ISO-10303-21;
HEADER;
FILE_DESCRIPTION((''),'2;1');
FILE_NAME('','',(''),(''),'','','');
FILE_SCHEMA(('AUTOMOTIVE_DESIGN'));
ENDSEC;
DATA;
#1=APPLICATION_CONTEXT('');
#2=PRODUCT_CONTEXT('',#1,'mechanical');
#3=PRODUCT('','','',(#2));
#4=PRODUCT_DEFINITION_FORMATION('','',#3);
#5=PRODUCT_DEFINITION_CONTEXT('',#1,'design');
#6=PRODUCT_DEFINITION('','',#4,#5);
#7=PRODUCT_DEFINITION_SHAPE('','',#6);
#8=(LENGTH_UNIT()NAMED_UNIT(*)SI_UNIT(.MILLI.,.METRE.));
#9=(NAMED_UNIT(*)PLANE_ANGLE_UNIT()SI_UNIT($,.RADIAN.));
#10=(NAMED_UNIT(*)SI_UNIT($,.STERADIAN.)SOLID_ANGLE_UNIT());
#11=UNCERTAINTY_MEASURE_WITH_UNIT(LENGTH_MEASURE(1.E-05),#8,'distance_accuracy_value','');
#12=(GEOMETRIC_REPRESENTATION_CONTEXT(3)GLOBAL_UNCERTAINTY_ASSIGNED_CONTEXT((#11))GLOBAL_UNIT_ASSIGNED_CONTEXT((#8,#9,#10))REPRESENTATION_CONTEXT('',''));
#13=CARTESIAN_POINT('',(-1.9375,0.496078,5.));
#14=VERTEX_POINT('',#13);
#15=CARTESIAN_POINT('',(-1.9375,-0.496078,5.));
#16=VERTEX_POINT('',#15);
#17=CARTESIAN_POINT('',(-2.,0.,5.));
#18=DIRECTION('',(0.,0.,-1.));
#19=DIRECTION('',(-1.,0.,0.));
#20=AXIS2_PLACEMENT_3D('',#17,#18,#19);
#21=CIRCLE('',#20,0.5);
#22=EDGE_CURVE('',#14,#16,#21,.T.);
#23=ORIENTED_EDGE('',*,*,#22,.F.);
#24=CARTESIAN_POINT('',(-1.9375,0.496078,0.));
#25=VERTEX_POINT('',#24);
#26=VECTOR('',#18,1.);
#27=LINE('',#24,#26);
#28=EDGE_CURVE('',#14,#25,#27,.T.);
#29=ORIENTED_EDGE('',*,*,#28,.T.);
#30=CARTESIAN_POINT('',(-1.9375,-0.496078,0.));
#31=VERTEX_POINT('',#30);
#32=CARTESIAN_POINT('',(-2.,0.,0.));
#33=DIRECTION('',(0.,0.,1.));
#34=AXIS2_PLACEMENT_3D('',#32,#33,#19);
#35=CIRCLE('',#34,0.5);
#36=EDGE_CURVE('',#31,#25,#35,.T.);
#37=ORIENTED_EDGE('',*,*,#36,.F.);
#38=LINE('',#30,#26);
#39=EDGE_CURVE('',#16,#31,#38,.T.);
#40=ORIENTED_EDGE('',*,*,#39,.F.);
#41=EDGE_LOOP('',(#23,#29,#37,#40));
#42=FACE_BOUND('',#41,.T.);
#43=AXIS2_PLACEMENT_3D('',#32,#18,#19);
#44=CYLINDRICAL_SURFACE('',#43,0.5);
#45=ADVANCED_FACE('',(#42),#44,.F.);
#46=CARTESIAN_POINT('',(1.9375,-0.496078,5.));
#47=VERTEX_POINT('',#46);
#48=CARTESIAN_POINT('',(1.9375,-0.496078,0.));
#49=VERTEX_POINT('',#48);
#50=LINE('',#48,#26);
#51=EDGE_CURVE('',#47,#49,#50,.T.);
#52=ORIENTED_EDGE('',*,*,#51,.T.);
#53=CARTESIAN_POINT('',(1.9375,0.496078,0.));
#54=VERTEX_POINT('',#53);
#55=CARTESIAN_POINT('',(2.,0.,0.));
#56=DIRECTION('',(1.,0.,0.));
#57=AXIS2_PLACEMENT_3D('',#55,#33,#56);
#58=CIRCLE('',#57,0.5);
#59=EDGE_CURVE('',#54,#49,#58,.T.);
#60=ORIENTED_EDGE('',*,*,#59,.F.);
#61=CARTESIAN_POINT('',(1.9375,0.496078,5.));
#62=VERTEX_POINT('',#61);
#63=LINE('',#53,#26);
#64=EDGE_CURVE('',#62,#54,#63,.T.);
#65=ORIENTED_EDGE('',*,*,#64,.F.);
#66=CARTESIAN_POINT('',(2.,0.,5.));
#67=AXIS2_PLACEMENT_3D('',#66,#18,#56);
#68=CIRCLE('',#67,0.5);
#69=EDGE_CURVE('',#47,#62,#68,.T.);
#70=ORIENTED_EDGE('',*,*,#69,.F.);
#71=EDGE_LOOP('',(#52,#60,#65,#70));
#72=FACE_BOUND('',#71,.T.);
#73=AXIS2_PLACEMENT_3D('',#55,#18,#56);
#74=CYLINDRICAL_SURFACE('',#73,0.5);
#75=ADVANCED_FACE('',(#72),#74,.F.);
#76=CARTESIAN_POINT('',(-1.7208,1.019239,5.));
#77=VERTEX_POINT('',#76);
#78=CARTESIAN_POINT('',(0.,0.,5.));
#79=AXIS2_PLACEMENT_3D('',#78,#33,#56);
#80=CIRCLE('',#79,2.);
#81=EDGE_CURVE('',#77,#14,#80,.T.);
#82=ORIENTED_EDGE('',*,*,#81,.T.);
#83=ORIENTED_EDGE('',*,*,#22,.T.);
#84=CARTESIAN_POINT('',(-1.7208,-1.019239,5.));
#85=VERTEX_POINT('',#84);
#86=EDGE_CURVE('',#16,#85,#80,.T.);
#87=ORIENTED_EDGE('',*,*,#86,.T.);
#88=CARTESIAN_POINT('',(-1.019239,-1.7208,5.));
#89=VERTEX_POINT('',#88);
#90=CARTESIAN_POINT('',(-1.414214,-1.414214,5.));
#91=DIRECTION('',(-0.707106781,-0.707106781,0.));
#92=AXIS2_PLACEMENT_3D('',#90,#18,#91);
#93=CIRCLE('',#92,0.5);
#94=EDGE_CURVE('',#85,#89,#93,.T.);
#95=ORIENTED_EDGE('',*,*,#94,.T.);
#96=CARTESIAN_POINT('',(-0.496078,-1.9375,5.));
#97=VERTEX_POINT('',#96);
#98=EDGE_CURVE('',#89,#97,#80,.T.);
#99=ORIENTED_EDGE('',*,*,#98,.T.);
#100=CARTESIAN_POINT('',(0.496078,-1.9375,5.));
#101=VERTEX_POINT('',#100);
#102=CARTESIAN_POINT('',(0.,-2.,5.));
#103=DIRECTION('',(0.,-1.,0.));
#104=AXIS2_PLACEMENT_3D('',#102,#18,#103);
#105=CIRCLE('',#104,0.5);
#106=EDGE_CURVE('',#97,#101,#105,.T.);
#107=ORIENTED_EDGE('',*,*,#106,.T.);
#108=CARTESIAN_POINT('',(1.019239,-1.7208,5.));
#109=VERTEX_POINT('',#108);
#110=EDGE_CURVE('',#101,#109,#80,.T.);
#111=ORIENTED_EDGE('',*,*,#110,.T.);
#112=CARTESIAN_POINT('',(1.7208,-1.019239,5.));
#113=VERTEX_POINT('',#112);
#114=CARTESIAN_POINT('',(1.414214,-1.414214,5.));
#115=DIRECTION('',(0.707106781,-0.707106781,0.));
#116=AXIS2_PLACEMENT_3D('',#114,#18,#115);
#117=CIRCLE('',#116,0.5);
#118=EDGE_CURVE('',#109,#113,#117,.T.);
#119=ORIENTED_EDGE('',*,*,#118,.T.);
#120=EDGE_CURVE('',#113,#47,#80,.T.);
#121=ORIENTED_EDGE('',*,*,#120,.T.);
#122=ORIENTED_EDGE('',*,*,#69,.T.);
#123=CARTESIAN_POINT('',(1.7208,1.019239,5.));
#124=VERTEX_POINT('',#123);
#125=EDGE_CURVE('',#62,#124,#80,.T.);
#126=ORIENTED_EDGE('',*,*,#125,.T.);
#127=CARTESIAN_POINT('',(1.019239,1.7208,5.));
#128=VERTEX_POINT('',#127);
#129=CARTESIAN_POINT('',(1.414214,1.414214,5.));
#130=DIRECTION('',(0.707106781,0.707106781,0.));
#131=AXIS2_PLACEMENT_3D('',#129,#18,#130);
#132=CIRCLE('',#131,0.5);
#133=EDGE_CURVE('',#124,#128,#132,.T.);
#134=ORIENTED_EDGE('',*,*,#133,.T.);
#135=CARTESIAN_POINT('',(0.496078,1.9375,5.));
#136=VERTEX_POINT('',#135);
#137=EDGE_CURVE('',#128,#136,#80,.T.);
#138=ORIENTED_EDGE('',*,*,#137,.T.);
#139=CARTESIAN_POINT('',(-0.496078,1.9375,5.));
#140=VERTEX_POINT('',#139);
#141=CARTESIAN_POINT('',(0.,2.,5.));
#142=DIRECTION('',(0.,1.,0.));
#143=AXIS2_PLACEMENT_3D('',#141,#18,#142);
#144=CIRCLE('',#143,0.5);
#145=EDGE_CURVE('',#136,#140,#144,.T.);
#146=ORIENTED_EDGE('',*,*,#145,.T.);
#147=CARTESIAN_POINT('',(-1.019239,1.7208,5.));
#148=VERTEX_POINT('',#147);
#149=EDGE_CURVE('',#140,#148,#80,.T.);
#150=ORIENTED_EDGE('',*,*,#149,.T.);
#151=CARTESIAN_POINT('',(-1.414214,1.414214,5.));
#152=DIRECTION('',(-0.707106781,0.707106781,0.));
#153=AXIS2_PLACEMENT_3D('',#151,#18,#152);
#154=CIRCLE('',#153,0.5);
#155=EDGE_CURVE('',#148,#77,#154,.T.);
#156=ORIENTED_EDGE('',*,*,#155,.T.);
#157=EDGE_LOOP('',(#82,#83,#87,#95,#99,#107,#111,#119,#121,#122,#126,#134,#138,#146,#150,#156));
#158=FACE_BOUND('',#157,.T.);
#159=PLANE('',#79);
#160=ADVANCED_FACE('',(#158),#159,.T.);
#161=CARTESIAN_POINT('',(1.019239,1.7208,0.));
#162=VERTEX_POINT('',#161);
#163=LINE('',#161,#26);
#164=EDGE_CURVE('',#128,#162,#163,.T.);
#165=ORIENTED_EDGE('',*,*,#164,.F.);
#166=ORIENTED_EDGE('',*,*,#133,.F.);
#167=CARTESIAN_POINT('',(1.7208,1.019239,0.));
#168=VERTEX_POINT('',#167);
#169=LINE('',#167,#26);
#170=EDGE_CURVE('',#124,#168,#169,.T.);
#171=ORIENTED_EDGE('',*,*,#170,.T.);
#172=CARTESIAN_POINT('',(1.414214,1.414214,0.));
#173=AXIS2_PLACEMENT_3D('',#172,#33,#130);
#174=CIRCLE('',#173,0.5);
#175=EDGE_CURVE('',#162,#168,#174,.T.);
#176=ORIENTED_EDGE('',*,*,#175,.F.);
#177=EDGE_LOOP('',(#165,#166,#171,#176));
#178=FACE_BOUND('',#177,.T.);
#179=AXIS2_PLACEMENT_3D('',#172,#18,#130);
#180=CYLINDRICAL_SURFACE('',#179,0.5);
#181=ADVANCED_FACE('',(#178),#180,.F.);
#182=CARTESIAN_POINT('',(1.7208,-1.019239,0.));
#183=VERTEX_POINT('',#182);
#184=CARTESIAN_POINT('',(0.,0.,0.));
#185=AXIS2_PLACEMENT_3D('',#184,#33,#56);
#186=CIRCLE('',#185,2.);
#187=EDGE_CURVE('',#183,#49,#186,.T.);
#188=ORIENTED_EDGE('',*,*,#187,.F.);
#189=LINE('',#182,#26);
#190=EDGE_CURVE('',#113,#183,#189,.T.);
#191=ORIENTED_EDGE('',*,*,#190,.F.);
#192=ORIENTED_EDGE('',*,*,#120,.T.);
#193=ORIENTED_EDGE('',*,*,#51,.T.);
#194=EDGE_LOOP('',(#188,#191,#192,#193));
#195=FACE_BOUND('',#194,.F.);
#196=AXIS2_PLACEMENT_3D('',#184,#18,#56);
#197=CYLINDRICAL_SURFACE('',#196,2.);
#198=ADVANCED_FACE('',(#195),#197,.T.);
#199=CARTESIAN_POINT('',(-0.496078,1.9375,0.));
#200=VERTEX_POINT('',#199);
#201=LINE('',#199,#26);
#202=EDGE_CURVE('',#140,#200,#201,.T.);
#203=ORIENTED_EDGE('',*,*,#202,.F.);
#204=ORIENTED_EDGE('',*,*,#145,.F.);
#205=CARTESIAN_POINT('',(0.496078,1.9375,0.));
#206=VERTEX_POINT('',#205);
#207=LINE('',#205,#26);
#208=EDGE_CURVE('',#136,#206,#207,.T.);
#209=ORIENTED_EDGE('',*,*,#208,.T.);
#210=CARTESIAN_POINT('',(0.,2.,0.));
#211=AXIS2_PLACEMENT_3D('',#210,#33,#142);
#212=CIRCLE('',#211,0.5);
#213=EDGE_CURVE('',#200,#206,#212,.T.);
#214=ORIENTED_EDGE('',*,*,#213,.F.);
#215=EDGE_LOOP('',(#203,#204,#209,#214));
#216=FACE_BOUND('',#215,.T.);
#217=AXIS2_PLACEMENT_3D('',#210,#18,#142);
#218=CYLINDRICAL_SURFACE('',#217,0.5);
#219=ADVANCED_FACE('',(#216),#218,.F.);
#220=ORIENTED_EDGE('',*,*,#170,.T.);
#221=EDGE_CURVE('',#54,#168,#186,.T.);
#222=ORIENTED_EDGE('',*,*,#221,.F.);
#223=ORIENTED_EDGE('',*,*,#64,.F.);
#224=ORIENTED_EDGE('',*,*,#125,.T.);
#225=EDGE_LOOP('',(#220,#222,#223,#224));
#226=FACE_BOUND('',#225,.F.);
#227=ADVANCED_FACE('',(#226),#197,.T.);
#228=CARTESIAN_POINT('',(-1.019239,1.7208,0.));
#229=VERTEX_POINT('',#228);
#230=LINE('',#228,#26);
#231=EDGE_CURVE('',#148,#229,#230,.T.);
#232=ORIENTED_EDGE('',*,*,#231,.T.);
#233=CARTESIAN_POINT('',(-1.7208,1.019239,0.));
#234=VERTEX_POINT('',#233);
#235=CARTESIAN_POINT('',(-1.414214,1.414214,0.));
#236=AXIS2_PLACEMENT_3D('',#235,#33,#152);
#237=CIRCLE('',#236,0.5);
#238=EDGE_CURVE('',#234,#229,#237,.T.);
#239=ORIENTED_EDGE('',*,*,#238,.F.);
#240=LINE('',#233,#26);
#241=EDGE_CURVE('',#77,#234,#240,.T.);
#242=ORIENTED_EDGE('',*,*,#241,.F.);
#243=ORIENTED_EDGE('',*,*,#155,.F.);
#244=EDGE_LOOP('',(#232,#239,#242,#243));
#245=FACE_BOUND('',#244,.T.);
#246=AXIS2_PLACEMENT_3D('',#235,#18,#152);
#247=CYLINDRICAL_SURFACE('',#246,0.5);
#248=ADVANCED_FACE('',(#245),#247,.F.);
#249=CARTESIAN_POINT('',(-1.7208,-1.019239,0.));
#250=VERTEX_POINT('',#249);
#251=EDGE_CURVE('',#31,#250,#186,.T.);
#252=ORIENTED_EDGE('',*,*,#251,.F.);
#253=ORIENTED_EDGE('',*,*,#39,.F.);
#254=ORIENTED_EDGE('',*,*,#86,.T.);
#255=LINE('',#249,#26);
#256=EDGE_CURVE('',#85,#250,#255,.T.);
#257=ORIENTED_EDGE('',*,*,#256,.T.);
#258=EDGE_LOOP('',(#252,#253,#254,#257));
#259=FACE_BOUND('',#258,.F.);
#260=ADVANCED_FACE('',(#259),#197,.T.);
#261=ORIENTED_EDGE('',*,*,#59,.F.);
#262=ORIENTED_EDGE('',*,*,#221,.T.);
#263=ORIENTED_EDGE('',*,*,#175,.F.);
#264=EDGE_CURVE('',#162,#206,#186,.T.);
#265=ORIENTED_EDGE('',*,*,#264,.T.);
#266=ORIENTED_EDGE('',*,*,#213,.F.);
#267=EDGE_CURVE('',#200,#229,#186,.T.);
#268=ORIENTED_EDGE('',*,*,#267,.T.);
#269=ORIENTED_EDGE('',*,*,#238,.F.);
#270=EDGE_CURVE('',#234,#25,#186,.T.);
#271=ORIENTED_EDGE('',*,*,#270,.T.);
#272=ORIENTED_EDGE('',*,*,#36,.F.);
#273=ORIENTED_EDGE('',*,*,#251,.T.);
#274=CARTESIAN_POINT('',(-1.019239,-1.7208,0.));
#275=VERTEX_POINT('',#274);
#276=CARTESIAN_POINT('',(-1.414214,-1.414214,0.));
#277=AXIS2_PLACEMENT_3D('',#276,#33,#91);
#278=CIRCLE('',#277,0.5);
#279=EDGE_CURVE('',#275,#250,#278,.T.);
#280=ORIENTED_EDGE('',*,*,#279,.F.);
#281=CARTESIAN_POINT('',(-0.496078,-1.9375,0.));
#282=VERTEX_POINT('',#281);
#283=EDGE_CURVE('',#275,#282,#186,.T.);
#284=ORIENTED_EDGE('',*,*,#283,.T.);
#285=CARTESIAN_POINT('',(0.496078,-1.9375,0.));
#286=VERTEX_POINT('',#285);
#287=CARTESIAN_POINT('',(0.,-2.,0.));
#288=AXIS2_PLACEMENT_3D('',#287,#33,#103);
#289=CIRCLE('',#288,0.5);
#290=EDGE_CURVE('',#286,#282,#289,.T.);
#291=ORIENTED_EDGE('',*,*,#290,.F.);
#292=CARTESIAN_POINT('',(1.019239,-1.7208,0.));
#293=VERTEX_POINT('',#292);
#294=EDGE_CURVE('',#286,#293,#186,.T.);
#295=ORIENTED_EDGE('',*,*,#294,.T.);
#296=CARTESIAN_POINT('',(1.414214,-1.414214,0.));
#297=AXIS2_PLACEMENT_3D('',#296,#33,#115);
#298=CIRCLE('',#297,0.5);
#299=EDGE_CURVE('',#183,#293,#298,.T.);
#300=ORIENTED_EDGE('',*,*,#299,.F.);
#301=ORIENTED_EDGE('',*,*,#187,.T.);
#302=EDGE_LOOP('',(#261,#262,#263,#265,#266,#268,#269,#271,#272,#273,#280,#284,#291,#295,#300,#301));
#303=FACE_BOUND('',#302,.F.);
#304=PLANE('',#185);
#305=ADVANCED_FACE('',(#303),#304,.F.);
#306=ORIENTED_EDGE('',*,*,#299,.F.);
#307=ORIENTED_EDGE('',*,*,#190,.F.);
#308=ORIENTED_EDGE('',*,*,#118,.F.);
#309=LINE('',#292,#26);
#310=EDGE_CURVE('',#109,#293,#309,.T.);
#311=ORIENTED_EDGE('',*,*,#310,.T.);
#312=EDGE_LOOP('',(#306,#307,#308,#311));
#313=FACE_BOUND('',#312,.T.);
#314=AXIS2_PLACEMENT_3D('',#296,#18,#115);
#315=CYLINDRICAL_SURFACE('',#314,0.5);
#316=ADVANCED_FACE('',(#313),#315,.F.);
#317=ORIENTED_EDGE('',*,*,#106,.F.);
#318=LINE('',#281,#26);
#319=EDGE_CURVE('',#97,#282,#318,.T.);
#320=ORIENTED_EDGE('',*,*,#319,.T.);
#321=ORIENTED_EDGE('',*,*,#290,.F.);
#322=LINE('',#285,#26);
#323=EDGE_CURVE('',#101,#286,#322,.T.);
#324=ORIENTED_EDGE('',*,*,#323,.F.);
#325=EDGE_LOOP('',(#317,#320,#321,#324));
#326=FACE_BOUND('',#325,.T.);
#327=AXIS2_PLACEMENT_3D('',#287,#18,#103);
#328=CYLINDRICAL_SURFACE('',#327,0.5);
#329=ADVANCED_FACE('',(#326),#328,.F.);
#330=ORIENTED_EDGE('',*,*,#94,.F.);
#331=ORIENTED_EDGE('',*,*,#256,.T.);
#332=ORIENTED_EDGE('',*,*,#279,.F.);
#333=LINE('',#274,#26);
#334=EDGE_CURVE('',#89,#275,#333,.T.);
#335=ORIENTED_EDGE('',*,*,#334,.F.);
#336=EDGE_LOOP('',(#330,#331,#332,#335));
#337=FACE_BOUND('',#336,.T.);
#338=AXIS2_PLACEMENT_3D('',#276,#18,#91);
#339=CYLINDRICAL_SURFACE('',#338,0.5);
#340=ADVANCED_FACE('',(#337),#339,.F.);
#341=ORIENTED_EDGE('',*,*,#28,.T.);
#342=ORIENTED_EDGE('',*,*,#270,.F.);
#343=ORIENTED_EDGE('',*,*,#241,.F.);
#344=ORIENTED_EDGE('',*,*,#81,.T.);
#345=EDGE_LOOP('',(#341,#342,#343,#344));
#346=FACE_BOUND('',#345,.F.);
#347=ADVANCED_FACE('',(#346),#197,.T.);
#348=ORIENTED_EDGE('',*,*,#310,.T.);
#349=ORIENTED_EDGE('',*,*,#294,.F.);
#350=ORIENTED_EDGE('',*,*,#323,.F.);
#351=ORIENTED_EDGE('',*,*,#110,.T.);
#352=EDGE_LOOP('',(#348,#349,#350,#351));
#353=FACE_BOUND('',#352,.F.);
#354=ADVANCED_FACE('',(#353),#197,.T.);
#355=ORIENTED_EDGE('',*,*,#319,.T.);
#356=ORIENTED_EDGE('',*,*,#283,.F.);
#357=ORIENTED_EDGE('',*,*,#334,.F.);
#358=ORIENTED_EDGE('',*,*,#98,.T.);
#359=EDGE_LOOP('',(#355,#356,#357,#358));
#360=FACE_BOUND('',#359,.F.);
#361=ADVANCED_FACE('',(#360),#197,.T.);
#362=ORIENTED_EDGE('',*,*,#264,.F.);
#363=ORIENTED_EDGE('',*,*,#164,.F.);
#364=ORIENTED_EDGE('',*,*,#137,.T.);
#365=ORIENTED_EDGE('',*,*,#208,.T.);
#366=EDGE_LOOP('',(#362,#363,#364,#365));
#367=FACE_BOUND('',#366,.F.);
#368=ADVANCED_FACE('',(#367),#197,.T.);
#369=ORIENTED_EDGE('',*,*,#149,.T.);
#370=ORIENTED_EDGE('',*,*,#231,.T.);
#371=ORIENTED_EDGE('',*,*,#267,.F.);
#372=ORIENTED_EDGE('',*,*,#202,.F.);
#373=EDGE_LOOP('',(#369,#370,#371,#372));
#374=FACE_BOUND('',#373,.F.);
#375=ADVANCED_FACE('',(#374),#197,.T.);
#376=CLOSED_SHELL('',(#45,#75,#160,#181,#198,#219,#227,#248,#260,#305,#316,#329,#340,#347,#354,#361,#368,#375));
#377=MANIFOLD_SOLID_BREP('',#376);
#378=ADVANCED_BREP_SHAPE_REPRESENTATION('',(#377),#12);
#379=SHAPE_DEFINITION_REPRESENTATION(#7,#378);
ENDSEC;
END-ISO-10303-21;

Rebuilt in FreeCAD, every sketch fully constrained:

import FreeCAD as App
import Part
import Sketcher

doc = App.newDocument("Part")
body = doc.addObject("PartDesign::Body", "Body")

sketch1 = doc.addObject("Sketcher::SketchObject", "Sketch")
body.addObject(sketch1)
sketch1.AttachmentSupport = (doc.XY_Plane, [""])
sketch1.MapMode = "FlatFace"
sketch1.addGeometry(Part.Circle(App.Vector(2, 0, 0), App.Vector(0, 0, 1), 0.5), False)
sketch1.addConstraint([
    Sketcher.Constraint("PointOnObject", 0, 3, -1),
    Sketcher.Constraint("Diameter", 0, 1.0),
    Sketcher.Constraint("DistanceX", -1, 1, 0, 3, 2.0),
])
pad1 = doc.addObject("PartDesign::Pad", "Pad")
body.addObject(pad1)
pad1.Profile = sketch1
pad1.Length = 10
body2 = doc.addObject("PartDesign::Body", "Body001")
body2.AllowCompound = True
doc.recompute()

body2.BaseFeature = body
doc.recompute()

body3 = doc.addObject("PartDesign::Body", "Body002")
body3.BaseFeature = body
body3.Placement = App.Placement(App.Vector(0, 0, 0), App.Rotation(App.Vector(0, 0, 1), 45))
boolean = doc.addObject("PartDesign::Boolean", "Boolean")
body2.addObject(boolean)
boolean.Type = "Fuse"
boolean.addObjects([body3])
doc.recompute()

body4 = doc.addObject("PartDesign::Body", "Body003")
body4.BaseFeature = body
body4.Placement = App.Placement(App.Vector(0, 0, 0), App.Rotation(App.Vector(0, 0, 1), 90))
boolean2 = doc.addObject("PartDesign::Boolean", "Boolean001")
body2.addObject(boolean2)
boolean2.Type = "Fuse"
boolean2.addObjects([body4])
doc.recompute()

body5 = doc.addObject("PartDesign::Body", "Body004")
body5.BaseFeature = body
body5.Placement = App.Placement(App.Vector(0, 0, 0), App.Rotation(App.Vector(0, 0, 1), 135))
boolean3 = doc.addObject("PartDesign::Boolean", "Boolean002")
body2.addObject(boolean3)
boolean3.Type = "Fuse"
boolean3.addObjects([body5])
doc.recompute()

body6 = doc.addObject("PartDesign::Body", "Body005")
body6.BaseFeature = body
body6.Placement = App.Placement(App.Vector(0, 0, 0), App.Rotation(App.Vector(0, 0, 1), 180))
boolean4 = doc.addObject("PartDesign::Boolean", "Boolean003")
body2.addObject(boolean4)
boolean4.Type = "Fuse"
boolean4.addObjects([body6])
doc.recompute()

body7 = doc.addObject("PartDesign::Body", "Body006")
body7.BaseFeature = body
body7.Placement = App.Placement(App.Vector(0, 0, 0), App.Rotation(App.Vector(0, 0, 1), 225))
boolean5 = doc.addObject("PartDesign::Boolean", "Boolean004")
body2.addObject(boolean5)
boolean5.Type = "Fuse"
boolean5.addObjects([body7])
doc.recompute()

body8 = doc.addObject("PartDesign::Body", "Body007")
body8.BaseFeature = body
body8.Placement = App.Placement(App.Vector(0, 0, 0), App.Rotation(App.Vector(0, 0, 1), 270))
boolean6 = doc.addObject("PartDesign::Boolean", "Boolean005")
body2.addObject(boolean6)
boolean6.Type = "Fuse"
boolean6.addObjects([body8])
doc.recompute()

body.Placement = App.Placement(App.Vector(0, 0, 0), App.Rotation(App.Vector(0, 0, 1), 315))
boolean7 = doc.addObject("PartDesign::Boolean", "Boolean006")
body2.addObject(boolean7)
boolean7.Type = "Fuse"
boolean7.addObjects([body])
body9 = doc.addObject("PartDesign::Body", "Body008")

sketch2 = doc.addObject("Sketcher::SketchObject", "Sketch001")
body9.addObject(sketch2)
sketch2.AttachmentSupport = (doc.getObject("XY_Plane008"), [""])
sketch2.MapMode = "FlatFace"
sketch2.addGeometry(Part.Circle(App.Vector(0, 0, 0), App.Vector(0, 0, 1), 2), False)
sketch2.addConstraint([
    Sketcher.Constraint("Coincident", 0, 3, -1, 1),
    Sketcher.Constraint("Diameter", 0, 4.0),
])
pad2 = doc.addObject("PartDesign::Pad", "Pad001")
body9.addObject(pad2)
pad2.Profile = sketch2
pad2.Length = 5
doc.recompute()

boolean8 = doc.addObject("PartDesign::Boolean", "Boolean007")
body9.addObject(boolean8)
boolean8.Type = "Cut"
boolean8.addObjects([body2])

doc.recompute()
